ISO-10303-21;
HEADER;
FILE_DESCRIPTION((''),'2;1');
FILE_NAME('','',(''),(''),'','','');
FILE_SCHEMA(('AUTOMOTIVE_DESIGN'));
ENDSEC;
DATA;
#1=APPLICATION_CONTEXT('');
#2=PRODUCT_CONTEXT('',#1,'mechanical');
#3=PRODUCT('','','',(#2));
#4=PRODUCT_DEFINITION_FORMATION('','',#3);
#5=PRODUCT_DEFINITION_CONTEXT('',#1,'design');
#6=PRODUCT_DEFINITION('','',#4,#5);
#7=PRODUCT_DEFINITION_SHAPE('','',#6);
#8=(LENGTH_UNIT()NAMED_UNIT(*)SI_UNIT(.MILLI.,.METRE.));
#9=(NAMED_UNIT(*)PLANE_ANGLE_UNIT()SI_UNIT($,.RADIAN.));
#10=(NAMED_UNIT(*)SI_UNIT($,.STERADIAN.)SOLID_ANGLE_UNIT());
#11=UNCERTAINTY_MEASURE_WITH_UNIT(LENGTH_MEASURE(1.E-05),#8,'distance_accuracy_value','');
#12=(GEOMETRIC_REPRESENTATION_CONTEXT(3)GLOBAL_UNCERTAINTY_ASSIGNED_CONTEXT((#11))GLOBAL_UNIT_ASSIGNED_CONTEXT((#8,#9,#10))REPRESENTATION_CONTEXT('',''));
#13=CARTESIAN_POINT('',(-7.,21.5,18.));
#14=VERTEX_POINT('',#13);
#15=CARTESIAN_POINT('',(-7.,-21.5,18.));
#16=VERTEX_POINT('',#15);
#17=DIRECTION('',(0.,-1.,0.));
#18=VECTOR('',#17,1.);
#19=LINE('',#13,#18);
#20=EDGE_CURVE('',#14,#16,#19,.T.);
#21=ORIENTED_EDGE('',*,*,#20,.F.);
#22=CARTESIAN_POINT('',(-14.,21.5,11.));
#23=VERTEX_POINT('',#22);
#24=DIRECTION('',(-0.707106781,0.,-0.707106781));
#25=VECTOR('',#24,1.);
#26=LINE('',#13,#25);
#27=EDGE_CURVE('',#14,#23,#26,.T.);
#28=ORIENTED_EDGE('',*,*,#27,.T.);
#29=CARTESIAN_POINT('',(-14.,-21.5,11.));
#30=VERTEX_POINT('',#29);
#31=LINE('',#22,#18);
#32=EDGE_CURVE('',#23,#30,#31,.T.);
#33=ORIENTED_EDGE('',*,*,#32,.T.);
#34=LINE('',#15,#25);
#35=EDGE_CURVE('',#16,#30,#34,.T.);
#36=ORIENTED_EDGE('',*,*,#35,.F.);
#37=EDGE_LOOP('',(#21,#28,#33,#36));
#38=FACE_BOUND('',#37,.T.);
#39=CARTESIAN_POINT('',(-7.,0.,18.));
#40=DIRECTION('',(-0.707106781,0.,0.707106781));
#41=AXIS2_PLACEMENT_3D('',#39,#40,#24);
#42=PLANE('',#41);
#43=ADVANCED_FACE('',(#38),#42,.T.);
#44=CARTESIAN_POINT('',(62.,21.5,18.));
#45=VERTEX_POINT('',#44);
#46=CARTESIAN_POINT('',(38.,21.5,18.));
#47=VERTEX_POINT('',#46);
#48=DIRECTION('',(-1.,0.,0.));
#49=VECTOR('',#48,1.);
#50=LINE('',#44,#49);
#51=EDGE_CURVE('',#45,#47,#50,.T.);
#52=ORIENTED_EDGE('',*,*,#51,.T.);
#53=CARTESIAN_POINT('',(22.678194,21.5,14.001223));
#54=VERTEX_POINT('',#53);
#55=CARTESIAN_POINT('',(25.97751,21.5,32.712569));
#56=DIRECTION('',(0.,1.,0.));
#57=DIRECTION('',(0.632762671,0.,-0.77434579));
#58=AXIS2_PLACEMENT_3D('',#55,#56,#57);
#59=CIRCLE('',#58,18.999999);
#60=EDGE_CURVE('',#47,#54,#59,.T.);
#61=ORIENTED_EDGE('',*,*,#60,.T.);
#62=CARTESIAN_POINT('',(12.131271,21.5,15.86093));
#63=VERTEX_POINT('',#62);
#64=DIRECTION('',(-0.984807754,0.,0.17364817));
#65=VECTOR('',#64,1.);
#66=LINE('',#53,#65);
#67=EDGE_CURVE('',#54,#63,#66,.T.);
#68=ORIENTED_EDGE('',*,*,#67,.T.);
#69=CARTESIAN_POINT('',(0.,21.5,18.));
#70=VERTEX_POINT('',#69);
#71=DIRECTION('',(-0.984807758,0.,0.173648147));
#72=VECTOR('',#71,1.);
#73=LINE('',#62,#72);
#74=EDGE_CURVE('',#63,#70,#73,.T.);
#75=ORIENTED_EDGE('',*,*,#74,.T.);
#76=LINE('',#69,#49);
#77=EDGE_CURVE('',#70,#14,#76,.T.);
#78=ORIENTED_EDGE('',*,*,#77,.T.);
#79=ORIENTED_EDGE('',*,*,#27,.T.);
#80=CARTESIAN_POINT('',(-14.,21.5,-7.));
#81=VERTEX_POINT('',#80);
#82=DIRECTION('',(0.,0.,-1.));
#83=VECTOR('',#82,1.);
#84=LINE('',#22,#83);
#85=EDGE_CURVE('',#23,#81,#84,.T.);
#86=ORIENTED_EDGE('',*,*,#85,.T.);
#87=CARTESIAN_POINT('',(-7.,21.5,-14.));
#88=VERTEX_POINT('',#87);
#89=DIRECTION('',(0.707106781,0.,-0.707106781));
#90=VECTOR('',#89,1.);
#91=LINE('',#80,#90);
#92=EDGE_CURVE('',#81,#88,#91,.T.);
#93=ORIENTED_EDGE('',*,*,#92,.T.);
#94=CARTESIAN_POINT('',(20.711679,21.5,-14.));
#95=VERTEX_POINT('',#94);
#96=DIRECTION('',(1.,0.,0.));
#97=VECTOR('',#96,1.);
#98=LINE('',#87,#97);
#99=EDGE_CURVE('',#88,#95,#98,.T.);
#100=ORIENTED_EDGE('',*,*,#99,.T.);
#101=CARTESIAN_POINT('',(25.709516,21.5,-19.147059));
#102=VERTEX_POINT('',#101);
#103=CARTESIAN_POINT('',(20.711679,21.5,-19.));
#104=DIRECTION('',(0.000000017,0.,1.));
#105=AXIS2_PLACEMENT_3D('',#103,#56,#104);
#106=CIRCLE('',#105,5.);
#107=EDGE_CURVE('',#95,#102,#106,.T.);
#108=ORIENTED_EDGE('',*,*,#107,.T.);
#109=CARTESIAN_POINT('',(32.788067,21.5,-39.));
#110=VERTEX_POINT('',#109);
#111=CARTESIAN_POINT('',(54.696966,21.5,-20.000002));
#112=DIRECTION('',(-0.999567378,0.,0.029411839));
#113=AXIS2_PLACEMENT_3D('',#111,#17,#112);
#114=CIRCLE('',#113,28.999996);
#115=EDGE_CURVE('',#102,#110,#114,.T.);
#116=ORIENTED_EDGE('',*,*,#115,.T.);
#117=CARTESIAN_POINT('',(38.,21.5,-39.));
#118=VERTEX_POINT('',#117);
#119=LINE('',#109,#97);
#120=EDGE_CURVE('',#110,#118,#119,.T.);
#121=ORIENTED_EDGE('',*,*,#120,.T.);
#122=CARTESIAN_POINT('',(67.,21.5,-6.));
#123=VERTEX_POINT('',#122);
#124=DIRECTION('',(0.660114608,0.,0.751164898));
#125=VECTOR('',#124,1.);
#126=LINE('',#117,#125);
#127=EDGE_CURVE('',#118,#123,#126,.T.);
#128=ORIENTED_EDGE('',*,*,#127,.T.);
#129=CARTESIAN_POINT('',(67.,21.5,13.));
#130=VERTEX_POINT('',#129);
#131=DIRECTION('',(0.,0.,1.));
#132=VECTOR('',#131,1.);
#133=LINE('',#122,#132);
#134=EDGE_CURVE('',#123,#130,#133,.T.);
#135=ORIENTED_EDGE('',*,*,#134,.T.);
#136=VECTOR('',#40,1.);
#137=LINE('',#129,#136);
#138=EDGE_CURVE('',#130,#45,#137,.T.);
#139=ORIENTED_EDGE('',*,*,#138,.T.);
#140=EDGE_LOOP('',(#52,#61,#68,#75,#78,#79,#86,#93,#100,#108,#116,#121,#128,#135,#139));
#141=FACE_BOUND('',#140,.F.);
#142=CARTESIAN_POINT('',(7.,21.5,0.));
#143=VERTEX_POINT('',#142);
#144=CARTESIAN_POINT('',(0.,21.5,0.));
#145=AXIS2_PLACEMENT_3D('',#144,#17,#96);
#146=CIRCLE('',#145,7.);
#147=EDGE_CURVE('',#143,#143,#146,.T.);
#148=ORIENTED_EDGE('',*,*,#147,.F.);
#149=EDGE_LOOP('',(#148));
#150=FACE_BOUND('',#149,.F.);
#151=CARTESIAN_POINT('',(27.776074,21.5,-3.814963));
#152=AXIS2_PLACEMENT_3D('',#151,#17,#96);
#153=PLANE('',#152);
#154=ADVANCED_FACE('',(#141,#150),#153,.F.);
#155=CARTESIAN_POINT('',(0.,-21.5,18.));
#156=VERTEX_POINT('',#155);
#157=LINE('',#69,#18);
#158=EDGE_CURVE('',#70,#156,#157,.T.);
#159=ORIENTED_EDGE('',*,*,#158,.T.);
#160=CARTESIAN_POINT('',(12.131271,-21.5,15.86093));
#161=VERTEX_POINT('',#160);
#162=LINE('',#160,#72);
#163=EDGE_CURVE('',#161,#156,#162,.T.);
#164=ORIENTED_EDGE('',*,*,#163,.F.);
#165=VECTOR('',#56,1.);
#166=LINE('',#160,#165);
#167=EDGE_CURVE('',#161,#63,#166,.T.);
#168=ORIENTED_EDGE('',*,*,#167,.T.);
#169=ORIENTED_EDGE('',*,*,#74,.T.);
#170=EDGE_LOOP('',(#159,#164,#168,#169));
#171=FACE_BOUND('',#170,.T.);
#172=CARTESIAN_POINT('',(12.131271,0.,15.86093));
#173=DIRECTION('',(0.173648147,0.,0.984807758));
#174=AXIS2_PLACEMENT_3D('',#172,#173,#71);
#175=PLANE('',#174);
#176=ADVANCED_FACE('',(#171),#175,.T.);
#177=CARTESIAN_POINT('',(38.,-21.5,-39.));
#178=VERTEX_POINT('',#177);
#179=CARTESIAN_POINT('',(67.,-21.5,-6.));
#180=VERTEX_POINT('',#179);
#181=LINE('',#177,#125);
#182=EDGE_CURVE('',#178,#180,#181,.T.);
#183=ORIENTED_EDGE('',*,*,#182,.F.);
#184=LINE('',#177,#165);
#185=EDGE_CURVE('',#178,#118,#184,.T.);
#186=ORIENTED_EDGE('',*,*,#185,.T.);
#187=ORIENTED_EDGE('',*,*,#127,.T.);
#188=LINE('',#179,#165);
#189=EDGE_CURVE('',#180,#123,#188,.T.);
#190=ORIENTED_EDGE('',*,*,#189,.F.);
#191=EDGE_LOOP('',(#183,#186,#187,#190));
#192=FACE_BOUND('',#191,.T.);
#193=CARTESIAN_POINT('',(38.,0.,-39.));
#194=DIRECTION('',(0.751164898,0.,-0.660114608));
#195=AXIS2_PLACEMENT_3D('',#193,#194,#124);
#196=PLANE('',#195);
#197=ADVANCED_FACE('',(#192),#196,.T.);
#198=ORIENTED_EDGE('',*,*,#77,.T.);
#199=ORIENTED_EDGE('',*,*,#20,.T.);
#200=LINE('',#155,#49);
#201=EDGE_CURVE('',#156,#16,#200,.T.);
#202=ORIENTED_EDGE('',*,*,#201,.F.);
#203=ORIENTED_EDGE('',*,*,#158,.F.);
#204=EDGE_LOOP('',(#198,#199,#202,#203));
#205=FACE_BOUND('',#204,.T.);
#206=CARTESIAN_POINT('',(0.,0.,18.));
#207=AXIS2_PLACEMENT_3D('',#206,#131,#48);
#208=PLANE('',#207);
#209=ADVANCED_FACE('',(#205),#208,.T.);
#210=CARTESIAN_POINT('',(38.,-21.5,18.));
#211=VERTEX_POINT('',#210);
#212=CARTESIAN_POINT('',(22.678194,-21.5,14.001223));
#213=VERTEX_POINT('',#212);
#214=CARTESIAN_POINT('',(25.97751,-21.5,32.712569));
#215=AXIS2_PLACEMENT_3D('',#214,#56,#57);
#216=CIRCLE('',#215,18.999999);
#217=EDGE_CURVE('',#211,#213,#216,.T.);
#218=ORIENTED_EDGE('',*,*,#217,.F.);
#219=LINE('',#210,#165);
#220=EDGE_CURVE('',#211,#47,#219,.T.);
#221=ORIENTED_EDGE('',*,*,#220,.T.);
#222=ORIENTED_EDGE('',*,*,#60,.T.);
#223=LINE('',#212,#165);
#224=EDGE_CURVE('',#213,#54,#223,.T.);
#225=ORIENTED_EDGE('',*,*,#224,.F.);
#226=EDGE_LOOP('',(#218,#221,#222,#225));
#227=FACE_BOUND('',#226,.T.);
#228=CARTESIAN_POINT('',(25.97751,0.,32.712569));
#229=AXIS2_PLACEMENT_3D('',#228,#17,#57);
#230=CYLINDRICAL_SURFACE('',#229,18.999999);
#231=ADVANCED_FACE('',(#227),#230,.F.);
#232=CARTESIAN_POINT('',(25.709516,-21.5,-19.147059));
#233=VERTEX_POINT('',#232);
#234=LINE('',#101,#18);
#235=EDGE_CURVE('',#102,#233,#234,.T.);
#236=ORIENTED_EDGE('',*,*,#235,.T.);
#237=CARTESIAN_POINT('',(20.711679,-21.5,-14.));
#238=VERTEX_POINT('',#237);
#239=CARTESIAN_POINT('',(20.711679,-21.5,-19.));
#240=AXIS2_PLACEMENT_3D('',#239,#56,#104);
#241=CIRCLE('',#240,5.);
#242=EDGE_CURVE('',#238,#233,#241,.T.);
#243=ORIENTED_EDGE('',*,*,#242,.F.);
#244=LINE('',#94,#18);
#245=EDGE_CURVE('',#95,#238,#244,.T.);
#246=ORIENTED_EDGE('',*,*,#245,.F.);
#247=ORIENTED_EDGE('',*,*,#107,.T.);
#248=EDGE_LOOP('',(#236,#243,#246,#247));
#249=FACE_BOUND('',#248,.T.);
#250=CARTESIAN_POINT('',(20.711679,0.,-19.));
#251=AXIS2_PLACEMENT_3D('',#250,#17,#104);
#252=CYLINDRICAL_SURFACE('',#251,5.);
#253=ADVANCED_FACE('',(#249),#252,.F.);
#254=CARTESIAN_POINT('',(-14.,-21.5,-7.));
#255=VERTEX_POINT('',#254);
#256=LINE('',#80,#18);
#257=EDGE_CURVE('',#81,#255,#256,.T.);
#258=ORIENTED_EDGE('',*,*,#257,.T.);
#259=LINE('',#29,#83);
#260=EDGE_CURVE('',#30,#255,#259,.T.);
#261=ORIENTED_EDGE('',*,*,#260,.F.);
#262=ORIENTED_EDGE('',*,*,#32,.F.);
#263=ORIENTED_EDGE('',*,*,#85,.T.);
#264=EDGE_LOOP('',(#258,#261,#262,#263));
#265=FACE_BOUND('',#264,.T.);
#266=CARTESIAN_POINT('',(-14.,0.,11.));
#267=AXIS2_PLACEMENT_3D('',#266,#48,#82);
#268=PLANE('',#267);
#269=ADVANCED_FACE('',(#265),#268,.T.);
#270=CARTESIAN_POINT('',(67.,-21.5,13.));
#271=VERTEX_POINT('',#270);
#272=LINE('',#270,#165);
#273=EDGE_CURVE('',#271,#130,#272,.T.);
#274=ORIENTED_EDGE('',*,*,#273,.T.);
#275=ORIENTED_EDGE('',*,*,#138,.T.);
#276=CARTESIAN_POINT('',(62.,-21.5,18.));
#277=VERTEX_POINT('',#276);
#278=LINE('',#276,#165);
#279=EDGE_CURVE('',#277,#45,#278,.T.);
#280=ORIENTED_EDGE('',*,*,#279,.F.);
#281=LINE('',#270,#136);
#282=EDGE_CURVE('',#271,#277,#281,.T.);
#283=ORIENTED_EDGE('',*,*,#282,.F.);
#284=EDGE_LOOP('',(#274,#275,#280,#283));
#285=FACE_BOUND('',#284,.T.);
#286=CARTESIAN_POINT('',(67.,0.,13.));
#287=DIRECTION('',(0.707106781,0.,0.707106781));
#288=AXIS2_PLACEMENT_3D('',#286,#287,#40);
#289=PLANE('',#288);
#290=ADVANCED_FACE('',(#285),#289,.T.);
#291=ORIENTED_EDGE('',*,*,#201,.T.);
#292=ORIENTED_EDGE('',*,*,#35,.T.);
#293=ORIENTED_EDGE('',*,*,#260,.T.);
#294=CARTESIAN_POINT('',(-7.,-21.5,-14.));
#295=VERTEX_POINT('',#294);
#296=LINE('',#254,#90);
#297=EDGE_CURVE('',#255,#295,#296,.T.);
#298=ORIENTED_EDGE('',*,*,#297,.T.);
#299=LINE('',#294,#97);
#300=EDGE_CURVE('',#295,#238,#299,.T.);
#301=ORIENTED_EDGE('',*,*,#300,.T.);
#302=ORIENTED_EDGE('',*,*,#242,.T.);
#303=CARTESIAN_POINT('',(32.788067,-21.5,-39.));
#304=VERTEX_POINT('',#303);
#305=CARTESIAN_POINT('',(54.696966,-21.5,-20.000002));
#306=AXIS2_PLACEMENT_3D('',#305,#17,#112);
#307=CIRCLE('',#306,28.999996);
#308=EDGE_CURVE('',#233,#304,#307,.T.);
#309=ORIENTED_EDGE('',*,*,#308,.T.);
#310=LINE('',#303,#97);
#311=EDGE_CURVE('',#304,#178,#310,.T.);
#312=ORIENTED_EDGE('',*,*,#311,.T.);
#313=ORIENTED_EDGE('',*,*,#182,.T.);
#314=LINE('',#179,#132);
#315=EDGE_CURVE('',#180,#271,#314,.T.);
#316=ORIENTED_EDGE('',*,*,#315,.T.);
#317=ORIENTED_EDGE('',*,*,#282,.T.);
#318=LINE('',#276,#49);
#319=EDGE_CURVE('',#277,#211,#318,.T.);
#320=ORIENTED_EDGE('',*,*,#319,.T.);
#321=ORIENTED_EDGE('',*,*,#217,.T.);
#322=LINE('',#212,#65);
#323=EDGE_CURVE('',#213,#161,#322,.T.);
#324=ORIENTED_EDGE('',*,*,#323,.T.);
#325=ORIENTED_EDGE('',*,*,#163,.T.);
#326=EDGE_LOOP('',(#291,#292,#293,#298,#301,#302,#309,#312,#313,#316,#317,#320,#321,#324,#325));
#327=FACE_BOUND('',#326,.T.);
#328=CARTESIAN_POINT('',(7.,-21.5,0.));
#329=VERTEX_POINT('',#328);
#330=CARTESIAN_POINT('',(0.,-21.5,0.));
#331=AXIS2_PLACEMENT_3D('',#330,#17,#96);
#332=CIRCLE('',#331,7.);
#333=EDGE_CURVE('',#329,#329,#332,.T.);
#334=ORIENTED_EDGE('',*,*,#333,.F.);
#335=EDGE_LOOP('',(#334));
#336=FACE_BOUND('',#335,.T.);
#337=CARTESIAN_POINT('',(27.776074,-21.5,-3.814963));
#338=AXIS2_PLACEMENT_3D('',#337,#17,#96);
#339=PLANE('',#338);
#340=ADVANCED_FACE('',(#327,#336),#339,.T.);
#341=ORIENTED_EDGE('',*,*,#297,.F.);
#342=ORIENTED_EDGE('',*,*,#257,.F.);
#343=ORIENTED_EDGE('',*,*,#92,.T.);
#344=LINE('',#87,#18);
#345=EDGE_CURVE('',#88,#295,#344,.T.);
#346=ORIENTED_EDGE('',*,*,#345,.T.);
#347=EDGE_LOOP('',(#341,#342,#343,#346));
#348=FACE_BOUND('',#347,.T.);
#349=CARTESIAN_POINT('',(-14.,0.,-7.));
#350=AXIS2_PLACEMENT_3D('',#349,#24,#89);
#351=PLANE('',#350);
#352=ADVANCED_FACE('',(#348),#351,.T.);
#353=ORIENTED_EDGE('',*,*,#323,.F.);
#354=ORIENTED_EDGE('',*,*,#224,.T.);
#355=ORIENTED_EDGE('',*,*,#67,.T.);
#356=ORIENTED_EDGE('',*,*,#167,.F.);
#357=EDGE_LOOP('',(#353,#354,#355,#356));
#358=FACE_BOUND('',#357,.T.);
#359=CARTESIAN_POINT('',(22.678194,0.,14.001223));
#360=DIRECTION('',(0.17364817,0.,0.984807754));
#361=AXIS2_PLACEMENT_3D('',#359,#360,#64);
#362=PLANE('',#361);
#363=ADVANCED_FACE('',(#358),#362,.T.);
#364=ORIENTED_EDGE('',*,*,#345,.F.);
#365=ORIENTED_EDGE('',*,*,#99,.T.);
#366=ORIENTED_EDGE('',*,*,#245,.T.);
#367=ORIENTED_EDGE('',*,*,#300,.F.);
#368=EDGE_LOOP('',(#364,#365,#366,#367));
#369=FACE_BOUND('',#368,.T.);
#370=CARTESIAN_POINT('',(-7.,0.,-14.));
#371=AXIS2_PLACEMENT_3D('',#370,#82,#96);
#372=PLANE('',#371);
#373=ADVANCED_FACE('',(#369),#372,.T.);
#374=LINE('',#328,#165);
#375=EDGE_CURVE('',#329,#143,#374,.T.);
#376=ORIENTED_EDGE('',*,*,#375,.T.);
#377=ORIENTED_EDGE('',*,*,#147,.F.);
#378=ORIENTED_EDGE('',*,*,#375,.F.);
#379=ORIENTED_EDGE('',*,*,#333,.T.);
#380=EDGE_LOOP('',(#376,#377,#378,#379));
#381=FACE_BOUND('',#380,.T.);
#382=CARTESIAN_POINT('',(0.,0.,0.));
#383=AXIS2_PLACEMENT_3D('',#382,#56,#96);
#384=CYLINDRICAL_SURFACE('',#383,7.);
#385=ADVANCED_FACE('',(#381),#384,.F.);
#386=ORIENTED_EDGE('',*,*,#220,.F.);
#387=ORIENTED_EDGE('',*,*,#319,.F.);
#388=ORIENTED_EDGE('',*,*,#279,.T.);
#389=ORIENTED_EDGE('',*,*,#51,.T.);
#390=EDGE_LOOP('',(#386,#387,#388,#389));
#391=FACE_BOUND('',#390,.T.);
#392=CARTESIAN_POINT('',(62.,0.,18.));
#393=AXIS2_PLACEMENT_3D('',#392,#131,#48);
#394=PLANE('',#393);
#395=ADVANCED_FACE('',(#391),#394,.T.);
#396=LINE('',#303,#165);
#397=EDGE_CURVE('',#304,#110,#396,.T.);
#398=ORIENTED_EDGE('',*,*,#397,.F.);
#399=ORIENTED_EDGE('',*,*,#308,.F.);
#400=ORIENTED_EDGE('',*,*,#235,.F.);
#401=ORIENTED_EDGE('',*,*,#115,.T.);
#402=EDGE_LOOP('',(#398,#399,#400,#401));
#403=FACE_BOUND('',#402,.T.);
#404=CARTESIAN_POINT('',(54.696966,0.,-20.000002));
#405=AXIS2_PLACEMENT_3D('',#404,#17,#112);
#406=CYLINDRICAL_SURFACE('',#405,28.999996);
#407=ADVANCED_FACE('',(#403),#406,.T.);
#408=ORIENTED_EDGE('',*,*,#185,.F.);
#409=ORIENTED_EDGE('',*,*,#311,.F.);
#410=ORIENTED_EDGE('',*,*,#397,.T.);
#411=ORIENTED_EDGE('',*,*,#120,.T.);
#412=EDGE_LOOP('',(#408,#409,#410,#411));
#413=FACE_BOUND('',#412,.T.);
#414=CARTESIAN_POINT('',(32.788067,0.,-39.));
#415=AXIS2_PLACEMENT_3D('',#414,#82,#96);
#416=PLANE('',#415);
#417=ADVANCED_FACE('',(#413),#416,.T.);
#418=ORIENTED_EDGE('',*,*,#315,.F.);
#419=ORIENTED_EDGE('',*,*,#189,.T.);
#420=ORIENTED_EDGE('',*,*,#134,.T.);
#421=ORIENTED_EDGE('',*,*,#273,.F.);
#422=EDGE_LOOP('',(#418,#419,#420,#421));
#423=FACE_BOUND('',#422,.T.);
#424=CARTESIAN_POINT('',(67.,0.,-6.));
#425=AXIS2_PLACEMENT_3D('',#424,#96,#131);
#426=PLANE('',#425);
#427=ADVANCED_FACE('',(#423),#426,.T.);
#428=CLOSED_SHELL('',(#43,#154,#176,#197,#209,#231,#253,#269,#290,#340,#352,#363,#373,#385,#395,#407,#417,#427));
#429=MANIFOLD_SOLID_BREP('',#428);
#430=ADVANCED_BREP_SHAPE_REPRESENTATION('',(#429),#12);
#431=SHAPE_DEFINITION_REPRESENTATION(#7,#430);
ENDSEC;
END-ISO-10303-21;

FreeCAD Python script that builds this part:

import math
import FreeCAD as App
import Part
import Sketcher
Q = App.Units.Quantity

doc = App.newDocument("Part")
body = doc.addObject("PartDesign::Body", "Body")

# Sketch on XZ plane
sketch1 = body.newObject("Sketcher::SketchObject", "Sketch")
sketch1.AttachmentSupport = (doc.getObject("XZ_Plane"), [""])
sketch1.MapMode = "FlatFace"
sketch1.addGeometry([
    Part.LineSegment(App.Vector(12, 16, 0), App.Vector(0, 18, 0)),  # 0
    Part.LineSegment(App.Vector(0, 18, 0), App.Vector(-7, 18, 0)),  # 1
    Part.LineSegment(App.Vector(-7, 18, 0), App.Vector(-14, 11, 0)),  # 2
    Part.LineSegment(App.Vector(-14, 11, 0), App.Vector(-14, -7, 0)),  # 3
    Part.LineSegment(App.Vector(-14, -7, 0), App.Vector(-7, -14, 0)),  # 4
    Part.LineSegment(App.Vector(-7, -14, 0), App.Vector(21, -14, 0)),  # 5
    Part.ArcOfCircle(Part.Circle(App.Vector(21, -19, 0), App.Vector(0, 0, 1), 5), math.radians(-2), math.radians(90)),  # 6
    Part.ArcOfCircle(Part.Circle(App.Vector(55, -20, 0), App.Vector(0, 0, 1), 29), math.radians(178), math.radians(221)),  # 7
    Part.LineSegment(App.Vector(33, -39, 0), App.Vector(38, -39, 0)),  # 8
    Part.LineSegment(App.Vector(38, -39, 0), App.Vector(67, -6, 0)),  # 9
    Part.LineSegment(App.Vector(67, -6, 0), App.Vector(67, 13, 0)),  # 10
    Part.LineSegment(App.Vector(67, 13, 0), App.Vector(62, 18, 0)),  # 11
    Part.LineSegment(App.Vector(62, 18, 0), App.Vector(38, 18, 0)),  # 12
    Part.ArcOfCircle(Part.Circle(App.Vector(26, 33, 0), App.Vector(0, 0, 1), 19), math.radians(-100), math.radians(-51)),  # 13
    Part.LineSegment(App.Vector(23, 14, 0), App.Vector(12, 16, 0)),  # 14
    Part.Circle(App.Vector(0, 0, 0), App.Vector(0, 0, 1), 7),  # 15
], False)
sketch1.addConstraint([
    Sketcher.Constraint("Coincident", 0, 2, 1, 1),
    Sketcher.Constraint("Coincident", 1, 2, 2, 1),
    Sketcher.Constraint("Coincident", 2, 2, 3, 1),
    Sketcher.Constraint("Coincident", 3, 2, 4, 1),
    Sketcher.Constraint("Coincident", 4, 2, 5, 1),
    Sketcher.Constraint("Tangent", 5, 2, 6, 2),
    Sketcher.Constraint("Tangent", 6, 1, 7, 1),
    Sketcher.Constraint("Coincident", 7, 2, 8, 1),
    Sketcher.Constraint("Coincident", 8, 2, 9, 1),
    Sketcher.Constraint("Coincident", 9, 2, 10, 1),
    Sketcher.Constraint("Coincident", 10, 2, 11, 1),
    Sketcher.Constraint("Coincident", 11, 2, 12, 1),
    Sketcher.Constraint("Coincident", 12, 2, 13, 2),
    Sketcher.Constraint("Tangent", 13, 1, 14, 1),
    Sketcher.Constraint("Coincident", 14, 2, 0, 1),
    Sketcher.Constraint("Horizontal", 1),
    Sketcher.Constraint("Vertical", 3),
    Sketcher.Constraint("Horizontal", 5),
    Sketcher.Constraint("Horizontal", 8),
    Sketcher.Constraint("Vertical", 10),
    Sketcher.Constraint("Horizontal", 12),
    Sketcher.Constraint("Coincident", 15, 3, -1, 1),
    Sketcher.Constraint("PointOnObject", 0, 2, -2),
    Sketcher.Constraint("Perpendicular", 2, 4),
    Sketcher.Constraint("Parallel", 4, 11),
    Sketcher.Constraint("Parallel", 0, 14),
    Sketcher.Constraint("Horizontal", 1, 2, 11, 2),
    Sketcher.Constraint("Vertical", 1, 2, 4, 2),
    Sketcher.Constraint("Vertical", 8, 2, 12, 2),
    Sketcher.Constraint("Equal", 2, 4),
    Sketcher.Constraint("Diameter", 15, 14.0),
    Sketcher.Constraint("Radius", 6, 5.0),
    Sketcher.Constraint("Radius", 13, 18.999999),
    Sketcher.Constraint("DistanceX", 1, 2, 1, 1, 7.0),
    Sketcher.Constraint("DistanceX", 12, 2, 12, 1, 24.0),
    Sketcher.Constraint("DistanceY", 3, 2, 3, 1, 18.0),
    Sketcher.Constraint("DistanceY", 10, 1, 10, 2, 19.0),
    Sketcher.Constraint("Angle", 0, Q("170.000002 deg")),
    Sketcher.Constraint("DistanceY", 6, 3, -1, 1, 19.0),
    Sketcher.Constraint("DistanceY", -1, 1, 0, 2, 18.0),
    Sketcher.Constraint("DistanceY", 7, 2, -1, 1, 39.0),
    Sketcher.Constraint("DistanceX", -1, 1, 8, 2, 38.0),
    Sketcher.Constraint("DistanceX", -1, 1, 9, 2, 67.0),
    Sketcher.Constraint("Radius", 7, 28.999996),
    Sketcher.Constraint("DistanceX", 5, 1, 5, 2, 27.711679),
    Sketcher.Constraint("DistanceX", 7, 2, 7, 3, 21.908899),
    Sketcher.Constraint("DistanceX", -1, 1, 14, 2, 12.131271),
])
pad1 = body.newObject("PartDesign::Pad", "Pad")
pad1.Profile = sketch1
pad1.Length = 43
pad1.Midplane = True

doc.recompute()
